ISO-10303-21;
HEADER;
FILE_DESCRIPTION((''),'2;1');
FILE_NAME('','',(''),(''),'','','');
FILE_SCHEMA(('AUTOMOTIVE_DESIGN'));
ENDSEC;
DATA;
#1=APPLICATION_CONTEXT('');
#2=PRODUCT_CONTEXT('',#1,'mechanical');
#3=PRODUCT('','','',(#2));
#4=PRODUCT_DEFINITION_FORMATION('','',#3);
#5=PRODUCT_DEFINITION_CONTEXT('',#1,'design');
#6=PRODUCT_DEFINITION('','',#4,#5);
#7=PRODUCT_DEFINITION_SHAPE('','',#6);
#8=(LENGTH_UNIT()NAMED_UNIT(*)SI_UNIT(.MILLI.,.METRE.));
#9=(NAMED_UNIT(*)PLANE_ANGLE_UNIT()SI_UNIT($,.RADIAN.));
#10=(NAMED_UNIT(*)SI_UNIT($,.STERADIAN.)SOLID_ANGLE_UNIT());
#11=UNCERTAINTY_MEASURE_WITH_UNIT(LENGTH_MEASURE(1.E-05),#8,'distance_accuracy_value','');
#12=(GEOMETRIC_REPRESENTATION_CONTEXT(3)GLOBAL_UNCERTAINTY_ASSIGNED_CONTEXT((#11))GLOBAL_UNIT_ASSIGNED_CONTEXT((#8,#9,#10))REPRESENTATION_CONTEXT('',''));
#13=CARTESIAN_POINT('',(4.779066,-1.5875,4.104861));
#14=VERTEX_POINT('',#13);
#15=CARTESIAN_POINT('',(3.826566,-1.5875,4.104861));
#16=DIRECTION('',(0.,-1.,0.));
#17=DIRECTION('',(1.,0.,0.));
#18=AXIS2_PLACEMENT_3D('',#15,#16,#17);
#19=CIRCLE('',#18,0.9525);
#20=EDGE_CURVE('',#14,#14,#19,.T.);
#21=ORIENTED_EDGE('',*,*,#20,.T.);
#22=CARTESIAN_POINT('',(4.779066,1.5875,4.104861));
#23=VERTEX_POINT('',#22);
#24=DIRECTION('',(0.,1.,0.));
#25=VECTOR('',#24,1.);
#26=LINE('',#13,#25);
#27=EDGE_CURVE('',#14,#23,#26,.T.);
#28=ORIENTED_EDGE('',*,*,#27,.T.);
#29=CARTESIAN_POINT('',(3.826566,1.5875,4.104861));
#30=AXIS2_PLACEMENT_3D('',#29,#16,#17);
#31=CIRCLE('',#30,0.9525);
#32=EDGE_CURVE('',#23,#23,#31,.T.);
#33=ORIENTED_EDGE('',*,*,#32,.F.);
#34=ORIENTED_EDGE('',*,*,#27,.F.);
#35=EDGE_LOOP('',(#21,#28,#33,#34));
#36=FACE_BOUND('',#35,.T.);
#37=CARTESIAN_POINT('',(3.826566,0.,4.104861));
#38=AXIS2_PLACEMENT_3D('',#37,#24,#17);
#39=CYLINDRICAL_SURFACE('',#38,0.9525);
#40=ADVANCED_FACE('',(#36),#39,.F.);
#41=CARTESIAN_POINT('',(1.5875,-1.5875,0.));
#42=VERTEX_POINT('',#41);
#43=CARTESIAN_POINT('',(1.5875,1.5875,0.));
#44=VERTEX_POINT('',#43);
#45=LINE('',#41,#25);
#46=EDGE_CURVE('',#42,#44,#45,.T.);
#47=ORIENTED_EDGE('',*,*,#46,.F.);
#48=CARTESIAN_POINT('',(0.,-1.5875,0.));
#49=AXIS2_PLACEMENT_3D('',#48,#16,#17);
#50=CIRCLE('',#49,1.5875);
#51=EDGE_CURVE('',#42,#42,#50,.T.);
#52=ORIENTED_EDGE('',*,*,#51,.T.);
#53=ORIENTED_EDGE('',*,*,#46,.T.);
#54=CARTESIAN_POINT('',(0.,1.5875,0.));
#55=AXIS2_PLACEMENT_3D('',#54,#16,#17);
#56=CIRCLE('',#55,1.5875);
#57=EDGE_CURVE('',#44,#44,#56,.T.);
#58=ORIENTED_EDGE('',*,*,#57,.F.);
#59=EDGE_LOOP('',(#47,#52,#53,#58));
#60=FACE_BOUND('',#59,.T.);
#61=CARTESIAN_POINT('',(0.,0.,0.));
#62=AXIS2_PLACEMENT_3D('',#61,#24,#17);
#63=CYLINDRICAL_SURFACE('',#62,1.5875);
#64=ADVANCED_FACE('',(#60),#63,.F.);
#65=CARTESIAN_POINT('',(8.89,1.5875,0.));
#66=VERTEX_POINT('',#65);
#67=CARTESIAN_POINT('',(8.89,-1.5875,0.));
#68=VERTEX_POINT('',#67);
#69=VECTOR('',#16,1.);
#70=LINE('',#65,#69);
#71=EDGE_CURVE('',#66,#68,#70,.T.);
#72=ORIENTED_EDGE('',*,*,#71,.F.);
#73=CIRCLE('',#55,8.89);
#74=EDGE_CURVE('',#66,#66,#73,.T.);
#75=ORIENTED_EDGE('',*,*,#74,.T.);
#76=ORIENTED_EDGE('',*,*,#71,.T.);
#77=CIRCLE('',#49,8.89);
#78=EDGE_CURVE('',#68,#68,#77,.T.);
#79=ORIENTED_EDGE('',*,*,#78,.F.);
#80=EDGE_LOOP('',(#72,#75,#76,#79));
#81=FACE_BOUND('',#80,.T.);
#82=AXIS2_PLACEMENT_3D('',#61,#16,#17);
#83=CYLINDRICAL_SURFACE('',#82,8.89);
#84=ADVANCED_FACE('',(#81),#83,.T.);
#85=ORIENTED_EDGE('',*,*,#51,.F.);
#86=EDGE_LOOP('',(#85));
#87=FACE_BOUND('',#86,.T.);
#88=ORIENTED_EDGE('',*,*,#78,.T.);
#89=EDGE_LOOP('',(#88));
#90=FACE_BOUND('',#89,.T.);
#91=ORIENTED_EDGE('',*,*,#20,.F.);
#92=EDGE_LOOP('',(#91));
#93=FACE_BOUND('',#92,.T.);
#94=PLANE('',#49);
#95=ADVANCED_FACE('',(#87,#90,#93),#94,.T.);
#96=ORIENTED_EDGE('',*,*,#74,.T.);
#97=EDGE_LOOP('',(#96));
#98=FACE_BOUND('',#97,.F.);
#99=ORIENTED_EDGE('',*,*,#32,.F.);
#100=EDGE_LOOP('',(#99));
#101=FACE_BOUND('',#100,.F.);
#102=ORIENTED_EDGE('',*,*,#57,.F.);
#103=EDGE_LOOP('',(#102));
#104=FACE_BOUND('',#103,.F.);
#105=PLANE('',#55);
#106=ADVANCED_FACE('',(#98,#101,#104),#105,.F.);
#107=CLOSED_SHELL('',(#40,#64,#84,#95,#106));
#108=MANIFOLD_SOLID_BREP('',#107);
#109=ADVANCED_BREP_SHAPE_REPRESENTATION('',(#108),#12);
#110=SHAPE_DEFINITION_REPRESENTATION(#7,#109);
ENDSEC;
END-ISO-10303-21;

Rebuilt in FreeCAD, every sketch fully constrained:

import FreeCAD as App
import Part
import Sketcher

V = App.Vector
Q = App.Units.Quantity

doc = App.newDocument("Part")
body = doc.addObject("PartDesign::Body", "Body")

# Sketch on XZ plane
sketch1 = body.newObject("Sketcher::SketchObject", "Sketch")
sketch1.AttachmentSupport = (doc.getObject("XZ_Plane"), [""])
sketch1.MapMode = "FlatFace"
sketch1.addGeometry([
    Part.Circle(V(0, 0, 0), V(0, 0, 1), 8.9),
    Part.Circle(V(0, 0, 0), V(0, 0, 1), 1.6),
    Part.Circle(V(3.8, 4.1, 0), V(0, 0, 1), 1),
], False)
sketch1.addConstraint([
    Sketcher.Constraint("Coincident", 0, 3, -1, 1),
    Sketcher.Constraint("Coincident", 1, 3, -1, 1),
    Sketcher.Constraint("Diameter", 0, Q("0.7 in")),
    Sketcher.Constraint("Diameter", 1, Q("0.125 in")),
    Sketcher.Constraint("Diameter", 2, Q("0.075 in")),
    Sketcher.Constraint("DistanceY", -1, 1, 2, 3, Q("4.104861 mm")),
    Sketcher.Constraint("DistanceX", -1, 1, 2, 3, Q("3.826566 mm")),
])
pad1 = body.newObject("PartDesign::Pad", "Pad")
pad1.Profile = sketch1
pad1.Length = Q("0.125 in")
pad1.Midplane = True

doc.recompute()
